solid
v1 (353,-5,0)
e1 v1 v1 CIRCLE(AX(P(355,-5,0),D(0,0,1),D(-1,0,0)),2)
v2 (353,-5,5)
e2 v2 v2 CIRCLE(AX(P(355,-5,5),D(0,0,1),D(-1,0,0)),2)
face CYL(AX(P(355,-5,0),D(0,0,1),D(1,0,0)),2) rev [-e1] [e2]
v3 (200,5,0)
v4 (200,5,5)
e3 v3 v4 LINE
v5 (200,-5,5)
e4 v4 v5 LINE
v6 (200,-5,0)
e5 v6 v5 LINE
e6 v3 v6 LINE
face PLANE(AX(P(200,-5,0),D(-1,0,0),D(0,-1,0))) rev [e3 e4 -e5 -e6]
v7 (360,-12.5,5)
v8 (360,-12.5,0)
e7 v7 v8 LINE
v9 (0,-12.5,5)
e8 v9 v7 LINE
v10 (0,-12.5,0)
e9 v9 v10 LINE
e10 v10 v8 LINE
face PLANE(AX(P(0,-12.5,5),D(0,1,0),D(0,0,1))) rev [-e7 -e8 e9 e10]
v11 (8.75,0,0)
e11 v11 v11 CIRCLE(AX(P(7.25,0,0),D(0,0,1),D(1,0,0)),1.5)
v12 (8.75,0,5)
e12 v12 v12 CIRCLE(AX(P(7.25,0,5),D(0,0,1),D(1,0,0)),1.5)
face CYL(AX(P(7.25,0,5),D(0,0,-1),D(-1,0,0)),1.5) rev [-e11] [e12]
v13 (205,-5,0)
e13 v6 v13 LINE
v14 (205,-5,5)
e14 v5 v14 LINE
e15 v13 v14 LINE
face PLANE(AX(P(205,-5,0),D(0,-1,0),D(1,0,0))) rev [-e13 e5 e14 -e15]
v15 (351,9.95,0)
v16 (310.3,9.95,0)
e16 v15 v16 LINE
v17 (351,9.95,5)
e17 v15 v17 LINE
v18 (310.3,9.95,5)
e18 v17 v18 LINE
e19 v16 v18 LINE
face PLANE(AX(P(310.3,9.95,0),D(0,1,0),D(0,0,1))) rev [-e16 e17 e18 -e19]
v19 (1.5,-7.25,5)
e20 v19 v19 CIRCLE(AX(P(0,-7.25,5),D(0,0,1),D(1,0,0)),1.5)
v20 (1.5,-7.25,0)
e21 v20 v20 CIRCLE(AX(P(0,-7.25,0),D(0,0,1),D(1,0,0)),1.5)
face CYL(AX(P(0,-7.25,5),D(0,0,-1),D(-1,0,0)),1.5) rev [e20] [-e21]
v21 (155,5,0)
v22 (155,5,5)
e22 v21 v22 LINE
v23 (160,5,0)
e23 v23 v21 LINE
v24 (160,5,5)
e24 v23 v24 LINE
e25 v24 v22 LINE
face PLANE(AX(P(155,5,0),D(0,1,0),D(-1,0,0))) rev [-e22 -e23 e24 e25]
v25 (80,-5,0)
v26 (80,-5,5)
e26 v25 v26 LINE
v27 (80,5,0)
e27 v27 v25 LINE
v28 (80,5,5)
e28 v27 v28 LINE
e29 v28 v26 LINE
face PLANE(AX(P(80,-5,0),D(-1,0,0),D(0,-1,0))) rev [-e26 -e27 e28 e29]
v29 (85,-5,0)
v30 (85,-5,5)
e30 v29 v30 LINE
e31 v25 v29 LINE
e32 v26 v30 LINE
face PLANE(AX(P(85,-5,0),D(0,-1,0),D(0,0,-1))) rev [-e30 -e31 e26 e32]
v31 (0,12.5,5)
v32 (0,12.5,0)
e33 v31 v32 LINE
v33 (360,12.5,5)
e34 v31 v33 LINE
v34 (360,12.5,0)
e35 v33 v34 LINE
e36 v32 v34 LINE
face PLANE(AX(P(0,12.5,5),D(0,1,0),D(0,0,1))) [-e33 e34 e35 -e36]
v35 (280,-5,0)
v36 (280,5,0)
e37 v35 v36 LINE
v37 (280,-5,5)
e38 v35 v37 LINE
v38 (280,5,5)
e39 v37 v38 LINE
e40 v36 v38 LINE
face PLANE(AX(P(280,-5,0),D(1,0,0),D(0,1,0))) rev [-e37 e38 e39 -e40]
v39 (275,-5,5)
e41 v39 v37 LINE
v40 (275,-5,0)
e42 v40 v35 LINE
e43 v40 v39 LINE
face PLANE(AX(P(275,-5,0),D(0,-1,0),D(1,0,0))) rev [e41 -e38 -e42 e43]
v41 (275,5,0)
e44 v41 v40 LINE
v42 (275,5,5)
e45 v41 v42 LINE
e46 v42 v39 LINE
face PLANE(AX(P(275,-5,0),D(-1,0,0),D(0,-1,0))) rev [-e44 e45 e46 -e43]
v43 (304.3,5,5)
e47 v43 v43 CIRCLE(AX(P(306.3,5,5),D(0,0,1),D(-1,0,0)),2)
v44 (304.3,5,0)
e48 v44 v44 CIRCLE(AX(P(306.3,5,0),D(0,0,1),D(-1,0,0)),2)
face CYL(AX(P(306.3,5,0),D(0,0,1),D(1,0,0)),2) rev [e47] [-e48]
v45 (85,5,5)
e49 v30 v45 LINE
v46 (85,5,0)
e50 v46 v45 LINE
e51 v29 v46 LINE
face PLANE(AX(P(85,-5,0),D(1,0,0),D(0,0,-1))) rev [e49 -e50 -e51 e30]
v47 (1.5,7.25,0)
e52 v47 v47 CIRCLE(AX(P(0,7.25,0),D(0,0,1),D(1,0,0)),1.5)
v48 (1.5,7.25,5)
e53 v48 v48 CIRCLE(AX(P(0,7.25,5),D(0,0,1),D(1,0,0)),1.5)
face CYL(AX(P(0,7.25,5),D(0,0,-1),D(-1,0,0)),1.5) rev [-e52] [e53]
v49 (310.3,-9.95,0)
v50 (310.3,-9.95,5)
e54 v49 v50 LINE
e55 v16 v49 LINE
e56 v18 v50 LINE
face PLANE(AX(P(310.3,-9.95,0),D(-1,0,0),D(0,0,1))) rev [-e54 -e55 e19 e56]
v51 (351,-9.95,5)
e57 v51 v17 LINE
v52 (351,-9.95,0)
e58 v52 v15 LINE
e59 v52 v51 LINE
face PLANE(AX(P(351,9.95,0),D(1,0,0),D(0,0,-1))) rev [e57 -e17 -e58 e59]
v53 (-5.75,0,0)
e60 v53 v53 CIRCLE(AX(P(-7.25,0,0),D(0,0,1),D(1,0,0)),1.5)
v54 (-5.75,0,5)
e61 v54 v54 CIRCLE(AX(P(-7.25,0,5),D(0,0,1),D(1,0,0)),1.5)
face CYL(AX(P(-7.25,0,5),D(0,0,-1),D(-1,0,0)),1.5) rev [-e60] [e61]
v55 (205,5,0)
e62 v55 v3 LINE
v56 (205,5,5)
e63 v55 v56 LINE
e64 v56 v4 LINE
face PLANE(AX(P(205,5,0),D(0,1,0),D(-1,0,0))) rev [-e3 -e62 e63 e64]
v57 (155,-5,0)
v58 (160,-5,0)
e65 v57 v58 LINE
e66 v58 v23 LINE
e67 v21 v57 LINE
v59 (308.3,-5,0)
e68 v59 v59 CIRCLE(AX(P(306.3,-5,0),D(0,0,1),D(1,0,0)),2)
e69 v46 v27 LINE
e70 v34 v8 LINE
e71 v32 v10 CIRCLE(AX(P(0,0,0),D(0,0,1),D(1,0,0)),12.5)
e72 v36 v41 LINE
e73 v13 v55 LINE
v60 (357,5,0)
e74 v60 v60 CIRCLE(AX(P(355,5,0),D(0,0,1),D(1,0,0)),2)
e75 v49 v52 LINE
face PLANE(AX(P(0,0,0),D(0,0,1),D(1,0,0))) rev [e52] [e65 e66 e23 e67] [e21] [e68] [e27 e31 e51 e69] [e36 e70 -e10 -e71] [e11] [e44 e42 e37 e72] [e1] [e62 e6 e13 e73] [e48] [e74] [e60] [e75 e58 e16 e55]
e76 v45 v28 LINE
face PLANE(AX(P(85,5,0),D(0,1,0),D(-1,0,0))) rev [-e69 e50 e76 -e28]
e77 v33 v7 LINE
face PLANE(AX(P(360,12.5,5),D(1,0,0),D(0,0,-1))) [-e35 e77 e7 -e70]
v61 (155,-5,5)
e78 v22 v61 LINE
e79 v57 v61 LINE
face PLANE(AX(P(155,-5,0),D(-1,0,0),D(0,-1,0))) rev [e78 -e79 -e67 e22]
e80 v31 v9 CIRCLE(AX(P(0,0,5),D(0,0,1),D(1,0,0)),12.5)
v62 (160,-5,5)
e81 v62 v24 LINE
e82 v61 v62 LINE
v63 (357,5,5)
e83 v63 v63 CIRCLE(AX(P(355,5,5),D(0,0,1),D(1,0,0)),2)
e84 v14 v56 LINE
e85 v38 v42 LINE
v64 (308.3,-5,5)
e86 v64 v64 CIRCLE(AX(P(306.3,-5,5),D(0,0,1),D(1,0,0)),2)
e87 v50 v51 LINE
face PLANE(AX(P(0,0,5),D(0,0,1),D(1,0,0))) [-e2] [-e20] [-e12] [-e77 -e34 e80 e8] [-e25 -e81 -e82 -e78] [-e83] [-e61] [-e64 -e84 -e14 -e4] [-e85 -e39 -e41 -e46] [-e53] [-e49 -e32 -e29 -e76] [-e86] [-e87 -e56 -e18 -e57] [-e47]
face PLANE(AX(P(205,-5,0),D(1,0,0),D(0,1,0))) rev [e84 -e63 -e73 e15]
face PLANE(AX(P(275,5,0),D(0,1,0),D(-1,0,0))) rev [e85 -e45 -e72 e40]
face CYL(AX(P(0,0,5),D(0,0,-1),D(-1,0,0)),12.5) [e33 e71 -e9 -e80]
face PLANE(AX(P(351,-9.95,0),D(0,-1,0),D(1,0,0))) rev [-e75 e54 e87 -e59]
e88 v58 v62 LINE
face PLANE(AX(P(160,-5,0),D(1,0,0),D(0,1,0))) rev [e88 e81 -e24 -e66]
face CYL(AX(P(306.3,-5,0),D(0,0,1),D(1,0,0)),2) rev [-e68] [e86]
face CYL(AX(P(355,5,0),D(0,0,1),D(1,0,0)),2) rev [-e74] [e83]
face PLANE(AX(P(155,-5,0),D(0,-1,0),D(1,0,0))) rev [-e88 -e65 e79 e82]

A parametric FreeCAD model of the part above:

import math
import FreeCAD as App
import Part
import Sketcher
from FreeCAD import Vector
Q = App.Units.Quantity

doc = App.newDocument("Part")
params = doc.addObject("Spreadsheet::Sheet", "Params")
for row, (alias, value) in enumerate([
    ("sketch1_diameter", "3 mm"),
    ("sketch1_radius", "12.5 mm"),
    ("sketch1_width", "360 mm"),
    ("pad1_length", "5 mm"),
    ("sketch2_width", "40.7 mm"),
    ("sketch2_height", "19.9 mm"),
    ("sketch3_width", "5 mm"),
    ("sketch3_height", "10 mm"),
    ("sketch4_diameter", "4 mm"),
], start=1):
    params.set(f"A{row}", alias)
    params.set(f"B{row}", "=" + value)
    params.setAlias(f"B{row}", alias)

body = doc.addObject("PartDesign::Body", "Body")

# Sketch on XY plane
sketch1 = body.newObject("Sketcher::SketchObject", "Sketch")
sketch1.AttachmentSupport = (doc.getObject("XY_Plane"), [""])
sketch1.MapMode = "FlatFace"
sketch1.addGeometry(Part.LineSegment(Vector(0, -12.5, 0), Vector(360, -12.5, 0)), False)
sketch1.addGeometry(Part.LineSegment(Vector(360, -12.5, 0), Vector(360, 12.5, 0)), False)
sketch1.addGeometry(Part.LineSegment(Vector(360, 12.5, 0), Vector(0, 12.5, 0)), False)
sketch1.addGeometry(Part.ArcOfCircle(Part.Circle(Vector(0, 0, 0), Vector(0, 0, 1), 12.5), math.radians(90), math.radians(270)), False)
sketch1.addGeometry(Part.Circle(Vector(0, -7.2, 0), Vector(0, 0, 1), 1.5), False)
sketch1.addGeometry(Part.Circle(Vector(-7.2, 0, 0), Vector(0, 0, 1), 1.5), False)
sketch1.addGeometry(Part.Circle(Vector(7.2, 0, 0), Vector(0, 0, 1), 1.5), False)
sketch1.addGeometry(Part.Circle(Vector(0, 7.2, 0), Vector(0, 0, 1), 1.5), False)
sketch1.addConstraint(Sketcher.Constraint("Coincident", 0, 2, 1, 1))
sketch1.addConstraint(Sketcher.Constraint("Coincident", 1, 2, 2, 1))
sketch1.addConstraint(Sketcher.Constraint("Tangent", 2, 2, 3, 1))
sketch1.addConstraint(Sketcher.Constraint("Tangent", 3, 2, 0, 1))
sketch1.addConstraint(Sketcher.Constraint("Horizontal", 0))
sketch1.addConstraint(Sketcher.Constraint("Vertical", 1))
sketch1.addConstraint(Sketcher.Constraint("Horizontal", 2))
sketch1.addConstraint(Sketcher.Constraint("Coincident", 3, 3, -1, 1))
sketch1.addConstraint(Sketcher.Constraint("Equal", 4, 5))
sketch1.addConstraint(Sketcher.Constraint("Equal", 5, 6))
sketch1.addConstraint(Sketcher.Constraint("Equal", 6, 7))
sketch1.addConstraint(Sketcher.Constraint("Symmetric", 5, 3, 6, 3, -1, 1))
sketch1.addConstraint(Sketcher.Constraint("Symmetric", 4, 3, 7, 3, -1, 1))
sketch1.addConstraint(Sketcher.Constraint("PointOnObject", 4, 3, -2))
sketch1.addConstraint(Sketcher.Constraint("PointOnObject", 5, 3, -1))
sketch1.addConstraint(Sketcher.Constraint("Diameter", 4, Q("3 mm")))
sketch1.addConstraint(Sketcher.Constraint("Radius", 3, Q("12.5 mm")))
sketch1.addConstraint(Sketcher.Constraint("DistanceX", 0, 1, 0, 2, Q("360 mm")))
sketch1.addConstraint(Sketcher.Constraint("DistanceX", 5, 3, 6, 3, Q("14.5 mm")))
sketch1.addConstraint(Sketcher.Constraint("DistanceY", 4, 3, 7, 3, Q("14.5 mm")))
sketch1.setExpression("Constraints[15]", "Params.sketch1_diameter")
sketch1.setExpression("Constraints[16]", "Params.sketch1_radius")
sketch1.setExpression("Constraints[17]", "Params.sketch1_width")
pad1 = body.newObject("PartDesign::Pad", "Pad")
pad1.Profile = sketch1
pad1.setExpression("Length", "Params.pad1_length")

# Sketch on XY plane
sketch2 = body.newObject("Sketcher::SketchObject", "Sketch001")
sketch2.AttachmentSupport = (doc.getObject("XY_Plane"), [""])
sketch2.MapMode = "FlatFace"
sketch2.AttachmentOffset = App.Placement(Vector(0, 0, 5), App.Rotation())
sketch2.addGeometry(Part.LineSegment(Vector(310, 10, 0), Vector(310, -10, 0)), False)
sketch2.addGeometry(Part.LineSegment(Vector(310, -10, 0), Vector(351, -10, 0)), False)
sketch2.addGeometry(Part.LineSegment(Vector(351, -10, 0), Vector(351, 10, 0)), False)
sketch2.addGeometry(Part.LineSegment(Vector(351, 10, 0), Vector(310, 10, 0)), False)
sketch2.addConstraint(Sketcher.Constraint("Coincident", 0, 2, 1, 1))
sketch2.addConstraint(Sketcher.Constraint("Coincident", 1, 2, 2, 1))
sketch2.addConstraint(Sketcher.Constraint("Coincident", 2, 2, 3, 1))
sketch2.addConstraint(Sketcher.Constraint("Coincident", 3, 2, 0, 1))
sketch2.addConstraint(Sketcher.Constraint("Vertical", 0))
sketch2.addConstraint(Sketcher.Constraint("Horizontal", 1))
sketch2.addConstraint(Sketcher.Constraint("Vertical", 2))
sketch2.addConstraint(Sketcher.Constraint("Horizontal", 3))
sketch2.addConstraint(Sketcher.Constraint("DistanceX", 1, 1, 1, 2, Q("40.7 mm")))
sketch2.addConstraint(Sketcher.Constraint("DistanceY", 0, 2, 0, 1, Q("19.9 mm")))
sketch2.addConstraint(Sketcher.Constraint("DistanceX", -1, 1, 1, 2, Q("351 mm")))
sketch2.addConstraint(Sketcher.Constraint("DistanceY", 0, 2, -1, 1, Q("9.95 mm")))
sketch2.setExpression("Constraints[8]", "Params.sketch2_width")
sketch2.setExpression("Constraints[9]", "Params.sketch2_height")
pocket1 = body.newObject("PartDesign::Pocket", "Pocket")
pocket1.Profile = sketch2
pocket1.Type = "ThroughAll"

# Sketch on XY plane
sketch3 = body.newObject("Sketcher::SketchObject", "Sketch002")
sketch3.AttachmentSupport = (doc.getObject("XY_Plane"), [""])
sketch3.MapMode = "FlatFace"
sketch3.AttachmentOffset = App.Placement(Vector(0, 0, 5), App.Rotation())
sketch3.addGeometry(Part.LineSegment(Vector(80, 5, 0), Vector(80, -5, 0)), False)
sketch3.addGeometry(Part.LineSegment(Vector(80, -5, 0), Vector(85, -5, 0)), False)
sketch3.addGeometry(Part.LineSegment(Vector(85, -5, 0), Vector(85, 5, 0)), False)
sketch3.addGeometry(Part.LineSegment(Vector(85, 5, 0), Vector(80, 5, 0)), False)
sketch3.addGeometry(Part.LineSegment(Vector(200, 5, 0), Vector(200, -5, 0)), False)
sketch3.addGeometry(Part.LineSegment(Vector(200, -5, 0), Vector(205, -5, 0)), False)
sketch3.addGeometry(Part.LineSegment(Vector(205, -5, 0), Vector(205, 5, 0)), False)
sketch3.addGeometry(Part.LineSegment(Vector(205, 5, 0), Vector(200, 5, 0)), False)
sketch3.addGeometry(Part.LineSegment(Vector(155, 5, 0), Vector(155, -5, 0)), False)
sketch3.addGeometry(Part.LineSegment(Vector(155, -5, 0), Vector(160, -5, 0)), False)
sketch3.addGeometry(Part.LineSegment(Vector(160, -5, 0), Vector(160, 5, 0)), False)
sketch3.addGeometry(Part.LineSegment(Vector(160, 5, 0), Vector(155, 5, 0)), False)
sketch3.addGeometry(Part.LineSegment(Vector(275, 5, 0), Vector(275, -5, 0)), False)
sketch3.addGeometry(Part.LineSegment(Vector(275, -5, 0), Vector(280, -5, 0)), False)
sketch3.addGeometry(Part.LineSegment(Vector(280, -5, 0), Vector(280, 5, 0)), False)
sketch3.addGeometry(Part.LineSegment(Vector(280, 5, 0), Vector(275, 5, 0)), False)
sketch3.addConstraint(Sketcher.Constraint("Coincident", 0, 2, 1, 1))
sketch3.addConstraint(Sketcher.Constraint("Coincident", 1, 2, 2, 1))
sketch3.addConstraint(Sketcher.Constraint("Coincident", 2, 2, 3, 1))
sketch3.addConstraint(Sketcher.Constraint("Coincident", 3, 2, 0, 1))
sketch3.addConstraint(Sketcher.Constraint("Coincident", 4, 2, 5, 1))
sketch3.addConstraint(Sketcher.Constraint("Coincident", 5, 2, 6, 1))
sketch3.addConstraint(Sketcher.Constraint("Coincident", 6, 2, 7, 1))
sketch3.addConstraint(Sketcher.Constraint("Coincident", 7, 2, 4, 1))
sketch3.addConstraint(Sketcher.Constraint("Coincident", 8, 2, 9, 1))
sketch3.addConstraint(Sketcher.Constraint("Coincident", 9, 2, 10, 1))
sketch3.addConstraint(Sketcher.Constraint("Coincident", 10, 2, 11, 1))
sketch3.addConstraint(Sketcher.Constraint("Coincident", 11, 2, 8, 1))
sketch3.addConstraint(Sketcher.Constraint("Coincident", 12, 2, 13, 1))
sketch3.addConstraint(Sketcher.Constraint("Coincident", 13, 2, 14, 1))
sketch3.addConstraint(Sketcher.Constraint("Coincident", 14, 2, 15, 1))
sketch3.addConstraint(Sketcher.Constraint("Coincident", 15, 2, 12, 1))
sketch3.addConstraint(Sketcher.Constraint("Vertical", 0))
sketch3.addConstraint(Sketcher.Constraint("Horizontal", 1))
sketch3.addConstraint(Sketcher.Constraint("Vertical", 2))
sketch3.addConstraint(Sketcher.Constraint("Horizontal", 3))
sketch3.addConstraint(Sketcher.Constraint("Vertical", 4))
sketch3.addConstraint(Sketcher.Constraint("Horizontal", 5))
sketch3.addConstraint(Sketcher.Constraint("Vertical", 6))
sketch3.addConstraint(Sketcher.Constraint("Horizontal", 7))
sketch3.addConstraint(Sketcher.Constraint("Vertical", 8))
sketch3.addConstraint(Sketcher.Constraint("Horizontal", 9))
sketch3.addConstraint(Sketcher.Constraint("Vertical", 10))
sketch3.addConstraint(Sketcher.Constraint("Horizontal", 11))
sketch3.addConstraint(Sketcher.Constraint("Vertical", 12))
sketch3.addConstraint(Sketcher.Constraint("Horizontal", 13))
sketch3.addConstraint(Sketcher.Constraint("Vertical", 14))
sketch3.addConstraint(Sketcher.Constraint("Horizontal", 15))
sketch3.addConstraint(Sketcher.Constraint("Horizontal", 1, 2, 4, 2))
sketch3.addConstraint(Sketcher.Constraint("Horizontal", 3, 2, 6, 2))
sketch3.addConstraint(Sketcher.Constraint("Horizontal", 5, 2, 8, 2))
sketch3.addConstraint(Sketcher.Constraint("Horizontal", 7, 2, 10, 2))
sketch3.addConstraint(Sketcher.Constraint("Horizontal", 9, 2, 12, 2))
sketch3.addConstraint(Sketcher.Constraint("Horizontal", 11, 2, 14, 2))
sketch3.addConstraint(Sketcher.Constraint("Equal", 3, 5))
sketch3.addConstraint(Sketcher.Constraint("Equal", 7, 9))
sketch3.addConstraint(Sketcher.Constraint("Equal", 11, 13))
sketch3.addConstraint(Sketcher.Constraint("DistanceX", 1, 1, 1, 2, Q("5 mm")))
sketch3.addConstraint(Sketcher.Constraint("DistanceY", 0, 2, 0, 1, Q("10 mm")))
sketch3.addConstraint(Sketcher.Constraint("DistanceX", -1, 1, 0, 2, Q("80 mm")))
sketch3.addConstraint(Sketcher.Constraint("DistanceY", 0, 2, -1, 1, Q("5 mm")))
sketch3.addConstraint(Sketcher.Constraint("DistanceX", -1, 1, 4, 2, Q("200 mm")))
sketch3.addConstraint(Sketcher.Constraint("DistanceX", -1, 1, 8, 2, Q("155 mm")))
sketch3.addConstraint(Sketcher.Constraint("DistanceX", -1, 1, 12, 2, Q("275 mm")))
sketch3.setExpression("Constraints[41]", "Params.sketch3_width")
sketch3.setExpression("Constraints[42]", "Params.sketch3_height")
pocket2 = body.newObject("PartDesign::Pocket", "Pocket001")
pocket2.Profile = sketch3
pocket2.Type = "ThroughAll"

# Sketch on XY plane
sketch4 = body.newObject("Sketcher::SketchObject", "Sketch003")
sketch4.AttachmentSupport = (doc.getObject("XY_Plane"), [""])
sketch4.MapMode = "FlatFace"
sketch4.AttachmentOffset = App.Placement(Vector(0, 0, 5), App.Rotation())
sketch4.addGeometry(Part.Circle(Vector(355, 5, 0), Vector(0, 0, 1), 2), False)
sketch4.addGeometry(Part.Circle(Vector(355, -5, 0), Vector(0, 0, 1), 2), False)
sketch4.addGeometry(Part.Circle(Vector(306.3, 5, 0), Vector(0, 0, 1), 2), False)
sketch4.addGeometry(Part.Circle(Vector(306.3, -5, 0), Vector(0, 0, 1), 2), False)
sketch4.addConstraint(Sketcher.Constraint("Equal", 0, 1))
sketch4.addConstraint(Sketcher.Constraint("Equal", 1, 2))
sketch4.addConstraint(Sketcher.Constraint("Equal", 2, 3))
sketch4.addConstraint(Sketcher.Constraint("Symmetric", 0, 3, 1, 3, -1))
sketch4.addConstraint(Sketcher.Constraint("Symmetric", 2, 3, 3, 3, -1))
sketch4.addConstraint(Sketcher.Constraint("Horizontal", 0, 3, 2, 3))
sketch4.addConstraint(Sketcher.Constraint("Diameter", 0, Q("4 mm")))
sketch4.addConstraint(Sketcher.Constraint("DistanceX", -1, 1, 0, 3, Q("355 mm")))
sketch4.addConstraint(Sketcher.Constraint("DistanceY", -1, 1, 0, 3, Q("5 mm")))
sketch4.addConstraint(Sketcher.Constraint("DistanceX", -1, 1, 2, 3, Q("306.3 mm")))
sketch4.setExpression("Constraints[6]", "Params.sketch4_diameter")
pocket3 = body.newObject("PartDesign::Pocket", "Pocket002")
pocket3.Profile = sketch4
pocket3.Type = "ThroughAll"

doc.recompute()
